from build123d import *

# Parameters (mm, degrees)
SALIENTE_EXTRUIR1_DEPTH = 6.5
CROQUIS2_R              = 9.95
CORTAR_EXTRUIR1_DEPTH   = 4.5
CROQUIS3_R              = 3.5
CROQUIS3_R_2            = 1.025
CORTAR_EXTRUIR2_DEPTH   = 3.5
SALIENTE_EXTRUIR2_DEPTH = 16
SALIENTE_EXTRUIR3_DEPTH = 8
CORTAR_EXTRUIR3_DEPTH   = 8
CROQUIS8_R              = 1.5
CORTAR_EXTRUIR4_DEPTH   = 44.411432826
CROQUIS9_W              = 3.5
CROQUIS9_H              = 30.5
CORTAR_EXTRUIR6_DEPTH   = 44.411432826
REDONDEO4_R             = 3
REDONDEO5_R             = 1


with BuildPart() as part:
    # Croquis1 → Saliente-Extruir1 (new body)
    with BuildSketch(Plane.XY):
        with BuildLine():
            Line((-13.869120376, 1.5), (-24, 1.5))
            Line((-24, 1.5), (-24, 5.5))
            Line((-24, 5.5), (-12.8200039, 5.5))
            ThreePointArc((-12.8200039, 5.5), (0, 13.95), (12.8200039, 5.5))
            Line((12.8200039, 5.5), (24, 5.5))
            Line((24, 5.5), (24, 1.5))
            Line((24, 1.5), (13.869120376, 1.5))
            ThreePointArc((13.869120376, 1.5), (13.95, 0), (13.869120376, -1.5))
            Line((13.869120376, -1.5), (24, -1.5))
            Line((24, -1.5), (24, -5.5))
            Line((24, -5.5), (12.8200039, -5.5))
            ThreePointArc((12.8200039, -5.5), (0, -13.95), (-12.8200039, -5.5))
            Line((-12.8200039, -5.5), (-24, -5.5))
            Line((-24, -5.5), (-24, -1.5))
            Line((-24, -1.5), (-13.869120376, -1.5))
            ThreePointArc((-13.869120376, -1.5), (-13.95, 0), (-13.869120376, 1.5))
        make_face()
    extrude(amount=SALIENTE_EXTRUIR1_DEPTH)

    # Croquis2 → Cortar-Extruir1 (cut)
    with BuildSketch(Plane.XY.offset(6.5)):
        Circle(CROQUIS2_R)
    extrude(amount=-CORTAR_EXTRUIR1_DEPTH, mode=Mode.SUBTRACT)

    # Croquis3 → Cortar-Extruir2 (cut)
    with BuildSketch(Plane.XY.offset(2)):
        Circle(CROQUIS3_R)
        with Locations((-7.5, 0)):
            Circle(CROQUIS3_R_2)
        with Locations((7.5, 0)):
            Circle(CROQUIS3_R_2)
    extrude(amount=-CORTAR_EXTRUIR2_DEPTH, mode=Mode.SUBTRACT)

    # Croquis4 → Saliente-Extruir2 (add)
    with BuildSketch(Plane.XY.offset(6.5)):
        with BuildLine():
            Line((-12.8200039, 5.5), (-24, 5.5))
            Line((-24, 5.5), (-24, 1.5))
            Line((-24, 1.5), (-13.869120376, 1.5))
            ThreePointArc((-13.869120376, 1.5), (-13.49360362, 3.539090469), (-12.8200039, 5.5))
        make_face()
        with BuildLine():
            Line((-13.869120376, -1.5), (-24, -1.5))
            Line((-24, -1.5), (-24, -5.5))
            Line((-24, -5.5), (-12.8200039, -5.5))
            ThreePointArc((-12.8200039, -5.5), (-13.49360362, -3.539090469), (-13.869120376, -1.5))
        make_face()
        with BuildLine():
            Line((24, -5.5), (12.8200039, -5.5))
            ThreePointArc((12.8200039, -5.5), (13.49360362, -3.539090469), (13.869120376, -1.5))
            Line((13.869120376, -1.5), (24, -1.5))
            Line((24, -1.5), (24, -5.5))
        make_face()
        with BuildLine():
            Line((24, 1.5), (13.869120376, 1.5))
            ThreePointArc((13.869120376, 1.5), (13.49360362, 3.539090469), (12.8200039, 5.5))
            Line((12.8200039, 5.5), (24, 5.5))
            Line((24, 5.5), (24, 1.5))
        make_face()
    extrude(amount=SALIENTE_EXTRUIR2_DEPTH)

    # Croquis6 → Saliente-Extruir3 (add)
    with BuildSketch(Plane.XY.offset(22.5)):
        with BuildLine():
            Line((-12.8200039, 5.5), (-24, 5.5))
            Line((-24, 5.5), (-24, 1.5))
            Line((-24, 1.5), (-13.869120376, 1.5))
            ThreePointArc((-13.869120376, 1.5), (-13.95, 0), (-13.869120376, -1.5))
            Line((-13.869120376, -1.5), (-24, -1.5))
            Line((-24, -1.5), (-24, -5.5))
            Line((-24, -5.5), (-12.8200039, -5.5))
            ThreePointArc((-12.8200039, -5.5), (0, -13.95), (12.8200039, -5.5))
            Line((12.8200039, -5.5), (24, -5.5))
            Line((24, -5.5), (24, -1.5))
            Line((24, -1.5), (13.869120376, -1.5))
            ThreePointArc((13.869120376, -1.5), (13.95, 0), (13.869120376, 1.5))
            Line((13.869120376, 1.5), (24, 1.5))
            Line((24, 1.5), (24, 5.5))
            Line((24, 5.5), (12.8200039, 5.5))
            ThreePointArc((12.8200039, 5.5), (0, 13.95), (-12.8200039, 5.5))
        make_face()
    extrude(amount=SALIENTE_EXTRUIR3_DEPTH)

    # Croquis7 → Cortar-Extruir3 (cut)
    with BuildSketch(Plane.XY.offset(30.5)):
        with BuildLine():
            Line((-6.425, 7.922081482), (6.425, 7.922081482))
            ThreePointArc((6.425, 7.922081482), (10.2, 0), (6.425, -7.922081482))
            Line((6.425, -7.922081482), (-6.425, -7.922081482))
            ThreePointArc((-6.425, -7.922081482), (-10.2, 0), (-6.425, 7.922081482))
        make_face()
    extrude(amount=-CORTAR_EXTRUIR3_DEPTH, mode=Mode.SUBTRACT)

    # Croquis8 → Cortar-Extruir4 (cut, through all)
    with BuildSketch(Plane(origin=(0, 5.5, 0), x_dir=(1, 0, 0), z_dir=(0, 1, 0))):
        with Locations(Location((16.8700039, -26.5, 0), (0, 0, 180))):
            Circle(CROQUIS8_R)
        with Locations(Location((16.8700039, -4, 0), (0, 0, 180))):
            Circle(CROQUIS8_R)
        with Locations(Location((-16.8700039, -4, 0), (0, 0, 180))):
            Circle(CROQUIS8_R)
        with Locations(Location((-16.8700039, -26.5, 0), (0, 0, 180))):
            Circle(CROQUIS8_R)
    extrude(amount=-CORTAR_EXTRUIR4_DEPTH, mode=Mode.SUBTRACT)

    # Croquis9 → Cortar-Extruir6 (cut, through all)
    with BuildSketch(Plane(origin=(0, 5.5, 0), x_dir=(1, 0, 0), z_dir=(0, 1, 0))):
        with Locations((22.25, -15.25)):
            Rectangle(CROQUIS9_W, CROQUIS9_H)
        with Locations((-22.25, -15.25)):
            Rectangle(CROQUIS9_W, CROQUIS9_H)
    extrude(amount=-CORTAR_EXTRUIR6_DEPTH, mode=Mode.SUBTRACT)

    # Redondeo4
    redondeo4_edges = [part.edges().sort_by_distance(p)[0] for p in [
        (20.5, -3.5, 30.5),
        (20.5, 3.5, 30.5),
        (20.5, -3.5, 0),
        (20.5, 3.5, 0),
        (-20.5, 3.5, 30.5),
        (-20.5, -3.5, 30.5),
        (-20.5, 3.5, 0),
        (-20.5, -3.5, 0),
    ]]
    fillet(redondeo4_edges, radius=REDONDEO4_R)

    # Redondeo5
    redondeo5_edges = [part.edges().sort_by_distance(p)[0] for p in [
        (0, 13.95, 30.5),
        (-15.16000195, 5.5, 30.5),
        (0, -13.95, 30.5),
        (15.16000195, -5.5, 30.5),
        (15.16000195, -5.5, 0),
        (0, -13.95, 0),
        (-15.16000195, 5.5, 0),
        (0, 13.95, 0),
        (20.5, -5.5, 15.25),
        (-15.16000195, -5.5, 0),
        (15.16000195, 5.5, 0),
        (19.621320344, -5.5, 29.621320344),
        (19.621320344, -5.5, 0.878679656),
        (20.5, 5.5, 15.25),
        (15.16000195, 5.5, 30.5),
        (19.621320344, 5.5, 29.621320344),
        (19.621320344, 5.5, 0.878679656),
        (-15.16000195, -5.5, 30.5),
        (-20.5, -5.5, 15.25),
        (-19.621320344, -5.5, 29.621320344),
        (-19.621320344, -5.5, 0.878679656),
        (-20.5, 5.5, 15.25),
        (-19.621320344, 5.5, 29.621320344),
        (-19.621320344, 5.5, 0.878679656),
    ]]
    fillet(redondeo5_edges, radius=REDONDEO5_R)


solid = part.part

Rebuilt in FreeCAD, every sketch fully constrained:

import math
import FreeCAD as App
import Part
import Sketcher
from FreeCAD import Vector
Q = App.Units.Quantity


def edges_at(feature, points):
    """Names of the edges that pass closest to the given points."""
    edges = feature.Shape.Edges
    near = lambda p: min(range(len(edges)), key=lambda i: edges[i].distToShape(Part.Vertex(*p))[0])
    return sorted({f"Edge{near(p) + 1}" for p in points})

doc = App.newDocument("Part")
body = doc.addObject("PartDesign::Body", "Body")

# Sketch on XY plane
sketch1 = body.newObject("Sketcher::SketchObject", "Sketch")
sketch1.AttachmentSupport = (doc.getObject("XY_Plane"), [""])
sketch1.MapMode = "FlatFace"
sketch1.addGeometry([
    Part.LineSegment(Vector(-24, 1.5, 0), Vector(-13.9, 1.5, 0)),  # 0
    Part.ArcOfCircle(Part.Circle(Vector(0, 0, 0), Vector(0, 0, 1), 14), math.radians(173.83), math.radians(186.17)),  # 1
    Part.LineSegment(Vector(-13.9, -1.5, 0), Vector(-24, -1.5, 0)),  # 2
    Part.LineSegment(Vector(-24, -1.5, 0), Vector(-24, -5.5, 0)),  # 3
    Part.LineSegment(Vector(-24, -5.5, 0), Vector(-12.8, -5.5, 0)),  # 4
    Part.ArcOfCircle(Part.Circle(Vector(0, 0, 0), Vector(0, 0, 1), 13.9), math.radians(-157), math.radians(-23)),  # 5
    Part.LineSegment(Vector(12.8, -5.5, 0), Vector(24, -5.5, 0)),  # 6
    Part.LineSegment(Vector(24, -5.5, 0), Vector(24, -1.5, 0)),  # 7
    Part.LineSegment(Vector(24, -1.5, 0), Vector(13.9, -1.5, 0)),  # 8
    Part.ArcOfCircle(Part.Circle(Vector(0, 0, 0), Vector(0, 0, 1), 14), math.radians(-6.17), math.radians(6.17)),  # 9
    Part.LineSegment(Vector(13.9, 1.5, 0), Vector(24, 1.5, 0)),  # 10
    Part.LineSegment(Vector(24, 1.5, 0), Vector(24, 5.5, 0)),  # 11
    Part.LineSegment(Vector(24, 5.5, 0), Vector(12.8, 5.5, 0)),  # 12
    Part.ArcOfCircle(Part.Circle(Vector(0, 0, 0), Vector(0, 0, 1), 13.9), math.radians(23), math.radians(157)),  # 13
    Part.LineSegment(Vector(-12.8, 5.5, 0), Vector(-24, 5.5, 0)),  # 14
    Part.LineSegment(Vector(-24, 5.5, 0), Vector(-24, 1.5, 0)),  # 15
], False)
sketch1.addConstraint([
    Sketcher.Constraint("Coincident", 0, 2, 1, 1),
    Sketcher.Constraint("Coincident", 1, 2, 2, 1),
    Sketcher.Constraint("Coincident", 2, 2, 3, 1),
    Sketcher.Constraint("Coincident", 3, 2, 4, 1),
    Sketcher.Constraint("Coincident", 4, 2, 5, 1),
    Sketcher.Constraint("Coincident", 5, 2, 6, 1),
    Sketcher.Constraint("Coincident", 6, 2, 7, 1),
    Sketcher.Constraint("Coincident", 7, 2, 8, 1),
    Sketcher.Constraint("Coincident", 8, 2, 9, 1),
    Sketcher.Constraint("Coincident", 9, 2, 10, 1),
    Sketcher.Constraint("Coincident", 10, 2, 11, 1),
    Sketcher.Constraint("Coincident", 11, 2, 12, 1),
    Sketcher.Constraint("Coincident", 12, 2, 13, 1),
    Sketcher.Constraint("Coincident", 13, 2, 14, 1),
    Sketcher.Constraint("Coincident", 14, 2, 15, 1),
    Sketcher.Constraint("Coincident", 15, 2, 0, 1),
    Sketcher.Constraint("Horizontal", 0),
    Sketcher.Constraint("Horizontal", 2),
    Sketcher.Constraint("Vertical", 3),
    Sketcher.Constraint("Horizontal", 4),
    Sketcher.Constraint("Horizontal", 6),
    Sketcher.Constraint("Vertical", 7),
    Sketcher.Constraint("Horizontal", 8),
    Sketcher.Constraint("Horizontal", 10),
    Sketcher.Constraint("Vertical", 11),
    Sketcher.Constraint("Horizontal", 12),
    Sketcher.Constraint("Horizontal", 14),
    Sketcher.Constraint("Vertical", 15),
    Sketcher.Constraint("Coincident", 1, 3, -1, 1),
    Sketcher.Constraint("Coincident", 5, 3, -1, 1),
    Sketcher.Constraint("Coincident", 9, 3, -1, 1),
    Sketcher.Constraint("Coincident", 13, 3, -1, 1),
    Sketcher.Constraint("Equal", 1, 5),
    Sketcher.Constraint("Equal", 5, 9),
    Sketcher.Constraint("Equal", 9, 13),
    Sketcher.Constraint("Symmetric", 2, 2, 10, 2, -1, 1),
    Sketcher.Constraint("Symmetric", 6, 2, 14, 2, -1, 1),
    Sketcher.Constraint("Symmetric", 3, 2, 6, 2, -2),
    Sketcher.Constraint("Horizontal", 2, 2, 7, 2),
    Sketcher.Constraint("Horizontal", 0, 2, 9, 2),
    Sketcher.Constraint("Horizontal", 12, 2, 13, 2),
    Sketcher.Constraint("DistanceY", 3, 2, 3, 1, Q("4 mm")),
    Sketcher.Constraint("Radius", 1, Q("13.95 mm")),
    Sketcher.Constraint("DistanceX", 2, 2, -1, 1, Q("24 mm")),
    Sketcher.Constraint("DistanceY", 1, 2, 0, 2, Q("3 mm")),
])
pad1 = body.newObject("PartDesign::Pad", "Pad")
pad1.Profile = sketch1
pad1.Length = 6.5

# Sketch on XY plane
sketch2 = body.newObject("Sketcher::SketchObject", "Sketch001")
sketch2.AttachmentSupport = (doc.getObject("XY_Plane"), [""])
sketch2.MapMode = "FlatFace"
sketch2.AttachmentOffset = App.Placement(Vector(0, 0, 6.5), App.Rotation())
sketch2.addGeometry(Part.Circle(Vector(0, 0, 0), Vector(0, 0, 1), 10), False)
sketch2.addConstraint([
    Sketcher.Constraint("Coincident", 0, 3, -1, 1),
    Sketcher.Constraint("Diameter", 0, Q("19.9 mm")),
])
pocket1 = body.newObject("PartDesign::Pocket", "Pocket")
pocket1.Profile = sketch2
pocket1.Length = 4.5

# Sketch on XY plane
sketch3 = body.newObject("Sketcher::SketchObject", "Sketch002")
sketch3.AttachmentSupport = (doc.getObject("XY_Plane"), [""])
sketch3.MapMode = "FlatFace"
sketch3.AttachmentOffset = App.Placement(Vector(0, 0, 2), App.Rotation())
sketch3.addGeometry([
    Part.Circle(Vector(0, 0, 0), Vector(0, 0, 1), 3.5),
    Part.Circle(Vector(-7.5, 0, 0), Vector(0, 0, 1), 1),
    Part.Circle(Vector(7.5, 0, 0), Vector(0, 0, 1), 1),
], False)
sketch3.addConstraint([
    Sketcher.Constraint("Coincident", 0, 3, -1, 1),
    Sketcher.Constraint("Equal", 1, 2),
    Sketcher.Constraint("Symmetric", 1, 3, 2, 3, -1, 1),
    Sketcher.Constraint("PointOnObject", 1, 3, -1),
    Sketcher.Constraint("Diameter", 0, Q("7 mm")),
    Sketcher.Constraint("Diameter", 1, Q("2.05 mm")),
    Sketcher.Constraint("DistanceX", 1, 3, 2, 3, Q("15 mm")),
])
pocket2 = body.newObject("PartDesign::Pocket", "Pocket001")
pocket2.Profile = sketch3
pocket2.Length = 3.5

# Sketch on XY plane
sketch4 = body.newObject("Sketcher::SketchObject", "Sketch003")
sketch4.AttachmentSupport = (doc.getObject("XY_Plane"), [""])
sketch4.MapMode = "FlatFace"
sketch4.AttachmentOffset = App.Placement(Vector(0, 0, 6.5), App.Rotation())
sketch4.addGeometry([
    Part.LineSegment(Vector(-12.8, 5.5, 0), Vector(-24, 5.5, 0)),  # 0
    Part.LineSegment(Vector(-24, 5.5, 0), Vector(-24, 1.5, 0)),  # 1
    Part.LineSegment(Vector(-24, 1.5, 0), Vector(-13.9, 1.5, 0)),  # 2
    Part.ArcOfCircle(Part.Circle(Vector(0, 0, 0), Vector(0, 0, 1), 13.9), math.radians(156.78), math.radians(173.83)),  # 3
    Part.LineSegment(Vector(-13.9, -1.5, 0), Vector(-24, -1.5, 0)),  # 4
    Part.LineSegment(Vector(-24, -1.5, 0), Vector(-24, -5.5, 0)),  # 5
    Part.LineSegment(Vector(-24, -5.5, 0), Vector(-12.8, -5.5, 0)),  # 6
    Part.ArcOfCircle(Part.Circle(Vector(0, 0, 0), Vector(0, 0, 1), 13.9), math.radians(-173.83), math.radians(-156.78)),  # 7
    Part.LineSegment(Vector(12.8, -5.5, 0), Vector(24, -5.5, 0)),  # 8
    Part.LineSegment(Vector(24, -5.5, 0), Vector(24, -1.5, 0)),  # 9
    Part.LineSegment(Vector(24, -1.5, 0), Vector(13.9, -1.5, 0)),  # 10
    Part.ArcOfCircle(Part.Circle(Vector(0, 0, 0), Vector(0, 0, 1), 13.9), math.radians(-23.22), math.radians(-6.17)),  # 11
    Part.LineSegment(Vector(13.9, 1.5, 0), Vector(24, 1.5, 0)),  # 12
    Part.LineSegment(Vector(24, 1.5, 0), Vector(24, 5.5, 0)),  # 13
    Part.LineSegment(Vector(24, 5.5, 0), Vector(12.8, 5.5, 0)),  # 14
    Part.ArcOfCircle(Part.Circle(Vector(0, 0, 0), Vector(0, 0, 1), 13.9), math.radians(6.17), math.radians(23.22)),  # 15
], False)
sketch4.addConstraint([
    Sketcher.Constraint("Coincident", 0, 2, 1, 1),
    Sketcher.Constraint("Coincident", 1, 2, 2, 1),
    Sketcher.Constraint("Coincident", 2, 2, 3, 2),
    Sketcher.Constraint("Coincident", 3, 1, 0, 1),
    Sketcher.Constraint("Coincident", 4, 2, 5, 1),
    Sketcher.Constraint("Coincident", 5, 2, 6, 1),
    Sketcher.Constraint("Coincident", 6, 2, 7, 2),
    Sketcher.Constraint("Coincident", 7, 1, 4, 1),
    Sketcher.Constraint("Coincident", 8, 2, 9, 1),
    Sketcher.Constraint("Coincident", 9, 2, 10, 1),
    Sketcher.Constraint("Coincident", 10, 2, 11, 2),
    Sketcher.Constraint("Coincident", 11, 1, 8, 1),
    Sketcher.Constraint("Coincident", 12, 2, 13, 1),
    Sketcher.Constraint("Coincident", 13, 2, 14, 1),
    Sketcher.Constraint("Coincident", 14, 2, 15, 2),
    Sketcher.Constraint("Coincident", 15, 1, 12, 1),
    Sketcher.Constraint("Horizontal", 0),
    Sketcher.Constraint("Vertical", 1),
    Sketcher.Constraint("Horizontal", 2),
    Sketcher.Constraint("Horizontal", 4),
    Sketcher.Constraint("Vertical", 5),
    Sketcher.Constraint("Horizontal", 6),
    Sketcher.Constraint("Horizontal", 8),
    Sketcher.Constraint("Vertical", 9),
    Sketcher.Constraint("Horizontal", 10),
    Sketcher.Constraint("Horizontal", 12),
    Sketcher.Constraint("Vertical", 13),
    Sketcher.Constraint("Horizontal", 14),
    Sketcher.Constraint("Coincident", 3, 3, -1, 1),
    Sketcher.Constraint("Coincident", 7, 3, -1, 1),
    Sketcher.Constraint("Coincident", 11, 3, -1, 1),
    Sketcher.Constraint("Coincident", 15, 3, -1, 1),
    Sketcher.Constraint("Equal", 3, 7),
    Sketcher.Constraint("Equal", 7, 11),
    Sketcher.Constraint("Equal", 11, 15),
    Sketcher.Constraint("Symmetric", 0, 2, 8, 2, -1, 1),
    Sketcher.Constraint("Symmetric", 4, 2, 12, 2, -1, 1),
    Sketcher.Constraint("Symmetric", 5, 2, 8, 2, -2),
    Sketcher.Constraint("Horizontal", 7, 1, 9, 2),
    Sketcher.Constraint("Horizontal", 2, 2, 12, 2),
    Sketcher.Constraint("Horizontal", 3, 1, 13, 2),
    Sketcher.Constraint("DistanceY", 1, 2, 1, 1, Q("4 mm")),
    Sketcher.Constraint("Radius", 3, Q("13.95 mm")),
    Sketcher.Constraint("DistanceX", 0, 2, -1, 1, Q("24 mm")),
    Sketcher.Constraint("DistanceY", 4, 2, 1, 2, Q("3 mm")),
])
pad2 = body.newObject("PartDesign::Pad", "Pad001")
pad2.Profile = sketch4
pad2.Length = 16

# Sketch on XY plane
sketch5 = body.newObject("Sketcher::SketchObject", "Sketch004")
sketch5.AttachmentSupport = (doc.getObject("XY_Plane"), [""])
sketch5.MapMode = "FlatFace"
sketch5.AttachmentOffset = App.Placement(Vector(0, 0, 22.5), App.Rotation())
sketch5.addGeometry([
    Part.LineSegment(Vector(-12.8, 5.5, 0), Vector(-24, 5.5, 0)),  # 0
    Part.LineSegment(Vector(-24, 5.5, 0), Vector(-24, 1.5, 0)),  # 1
    Part.LineSegment(Vector(-24, 1.5, 0), Vector(-13.9, 1.5, 0)),  # 2
    Part.ArcOfCircle(Part.Circle(Vector(0, 0, 0), Vector(0, 0, 1), 14), math.radians(173.83), math.radians(186.17)),  # 3
    Part.LineSegment(Vector(-13.9, -1.5, 0), Vector(-24, -1.5, 0)),  # 4
    Part.LineSegment(Vector(-24, -1.5, 0), Vector(-24, -5.5, 0)),  # 5
    Part.LineSegment(Vector(-24, -5.5, 0), Vector(-12.8, -5.5, 0)),  # 6
    Part.ArcOfCircle(Part.Circle(Vector(0, 0, 0), Vector(0, 0, 1), 13.9), math.radians(-157), math.radians(-23)),  # 7
    Part.LineSegment(Vector(12.8, -5.5, 0), Vector(24, -5.5, 0)),  # 8
    Part.LineSegment(Vector(24, -5.5, 0), Vector(24, -1.5, 0)),  # 9
    Part.LineSegment(Vector(24, -1.5, 0), Vector(13.9, -1.5, 0)),  # 10
    Part.ArcOfCircle(Part.Circle(Vector(0, 0, 0), Vector(0, 0, 1), 14), math.radians(-6.17), math.radians(6.17)),  # 11
    Part.LineSegment(Vector(13.9, 1.5, 0), Vector(24, 1.5, 0)),  # 12
    Part.LineSegment(Vector(24, 1.5, 0), Vector(24, 5.5, 0)),  # 13
    Part.LineSegment(Vector(24, 5.5, 0), Vector(12.8, 5.5, 0)),  # 14
    Part.ArcOfCircle(Part.Circle(Vector(0, 0, 0), Vector(0, 0, 1), 13.9), math.radians(23), math.radians(157)),  # 15
], False)
sketch5.addConstraint([
    Sketcher.Constraint("Coincident", 0, 2, 1, 1),
    Sketcher.Constraint("Coincident", 1, 2, 2, 1),
    Sketcher.Constraint("Coincident", 2, 2, 3, 1),
    Sketcher.Constraint("Coincident", 3, 2, 4, 1),
    Sketcher.Constraint("Coincident", 4, 2, 5, 1),
    Sketcher.Constraint("Coincident", 5, 2, 6, 1),
    Sketcher.Constraint("Coincident", 6, 2, 7, 1),
    Sketcher.Constraint("Coincident", 7, 2, 8, 1),
    Sketcher.Constraint("Coincident", 8, 2, 9, 1),
    Sketcher.Constraint("Coincident", 9, 2, 10, 1),
    Sketcher.Constraint("Coincident", 10, 2, 11, 1),
    Sketcher.Constraint("Coincident", 11, 2, 12, 1),
    Sketcher.Constraint("Coincident", 12, 2, 13, 1),
    Sketcher.Constraint("Coincident", 13, 2, 14, 1),
    Sketcher.Constraint("Coincident", 14, 2, 15, 1),
    Sketcher.Constraint("Coincident", 15, 2, 0, 1),
    Sketcher.Constraint("Horizontal", 0),
    Sketcher.Constraint("Vertical", 1),
    Sketcher.Constraint("Horizontal", 2),
    Sketcher.Constraint("Horizontal", 4),
    Sketcher.Constraint("Vertical", 5),
    Sketcher.Constraint("Horizontal", 6),
    Sketcher.Constraint("Horizontal", 8),
    Sketcher.Constraint("Vertical", 9),
    Sketcher.Constraint("Horizontal", 10),
    Sketcher.Constraint("Horizontal", 12),
    Sketcher.Constraint("Vertical", 13),
    Sketcher.Constraint("Horizontal", 14),
    Sketcher.Constraint("Coincident", 3, 3, -1, 1),
    Sketcher.Constraint("Coincident", 7, 3, -1, 1),
    Sketcher.Constraint("Coincident", 11, 3, -1, 1),
    Sketcher.Constraint("Coincident", 15, 3, -1, 1),
    Sketcher.Constraint("Equal", 3, 7),
    Sketcher.Constraint("Equal", 7, 11),
    Sketcher.Constraint("Equal", 11, 15),
    Sketcher.Constraint("Symmetric", 0, 2, 8, 2, -1, 1),
    Sketcher.Constraint("Symmetric", 4, 2, 12, 2, -1, 1),
    Sketcher.Constraint("Symmetric", 5, 2, 8, 2, -2),
    Sketcher.Constraint("Horizontal", 4, 2, 9, 2),
    Sketcher.Constraint("Horizontal", 2, 2, 11, 2),
    Sketcher.Constraint("Horizontal", 0, 2, 13, 2),
    Sketcher.Constraint("DistanceY", 1, 2, 1, 1, Q("4 mm")),
    Sketcher.Constraint("Radius", 3, Q("13.95 mm")),
    Sketcher.Constraint("DistanceX", 0, 2, -1, 1, Q("24 mm")),
    Sketcher.Constraint("DistanceY", 3, 2, 2, 2, Q("3 mm")),
])
pad3 = body.newObject("PartDesign::Pad", "Pad002")
pad3.Profile = sketch5
pad3.Length = 8

# Sketch on XY plane
sketch6 = body.newObject("Sketcher::SketchObject", "Sketch005")
sketch6.AttachmentSupport = (doc.getObject("XY_Plane"), [""])
sketch6.MapMode = "FlatFace"
sketch6.AttachmentOffset = App.Placement(Vector(0, 0, 30.5), App.Rotation())
sketch6.addGeometry([
    Part.LineSegment(Vector(6, 8, 0), Vector(-6, 8, 0)),
    Part.ArcOfCircle(Part.Circle(Vector(0, 0, 0), Vector(0, 0, 1), 10), math.radians(129), math.radians(231)),
    Part.LineSegment(Vector(-6, -8, 0), Vector(6, -8, 0)),
    Part.ArcOfCircle(Part.Circle(Vector(0, 0, 0), Vector(0, 0, 1), 10), math.radians(-51), math.radians(51)),
], False)
sketch6.addConstraint([
    Sketcher.Constraint("Coincident", 0, 2, 1, 1),
    Sketcher.Constraint("Coincident", 1, 2, 2, 1),
    Sketcher.Constraint("Coincident", 2, 2, 3, 1),
    Sketcher.Constraint("Coincident", 3, 2, 0, 1),
    Sketcher.Constraint("Horizontal", 0),
    Sketcher.Constraint("Horizontal", 2),
    Sketcher.Constraint("Coincident", 1, 3, -1, 1),
    Sketcher.Constraint("Coincident", 3, 3, -1, 1),
    Sketcher.Constraint("Equal", 1, 3),
    Sketcher.Constraint("Vertical", 0, 2, 1, 2),
    Sketcher.Constraint("Radius", 1, Q("10.2 mm")),
    Sketcher.Constraint("DistanceX", 0, 2, 0, 1, Q("12.85 mm")),
])
pocket3 = body.newObject("PartDesign::Pocket", "Pocket002")
pocket3.Profile = sketch6
pocket3.Length = 8

# Sketch on XZ plane
sketch7 = body.newObject("Sketcher::SketchObject", "Sketch006")
sketch7.AttachmentSupport = (doc.getObject("XZ_Plane"), [""])
sketch7.MapMode = "FlatFace"
sketch7.AttachmentOffset = App.Placement(Vector(0, 0, -5.5), App.Rotation())
sketch7.addGeometry([
    Part.Circle(Vector(16.9, 26.5, 0), Vector(0, 0, 1), 1.5),
    Part.Circle(Vector(16.9, 4, 0), Vector(0, 0, 1), 1.5),
    Part.Circle(Vector(-16.9, 4, 0), Vector(0, 0, 1), 1.5),
    Part.Circle(Vector(-16.9, 26.5, 0), Vector(0, 0, 1), 1.5),
], False)
sketch7.addConstraint([
    Sketcher.Constraint("Equal", 0, 1),
    Sketcher.Constraint("Equal", 1, 2),
    Sketcher.Constraint("Equal", 2, 3),
    Sketcher.Constraint("Symmetric", 1, 3, 2, 3, -2),
    Sketcher.Constraint("Symmetric", 0, 3, 3, 3, -2),
    Sketcher.Constraint("Vertical", 0, 3, 1, 3),
    Sketcher.Constraint("Diameter", 0, Q("3 mm")),
    Sketcher.Constraint("DistanceY", -1, 1, 1, 3, Q("4 mm")),
    Sketcher.Constraint("DistanceY", -1, 1, 0, 3, Q("26.5 mm")),
    Sketcher.Constraint("DistanceX", -1, 1, 0, 3, Q("16.870004 mm")),
])
pocket4 = body.newObject("PartDesign::Pocket", "Pocket003")
pocket4.Profile = sketch7
pocket4.Type = "ThroughAll"
pocket4.Reversed = True

# Sketch on XZ plane
sketch8 = body.newObject("Sketcher::SketchObject", "Sketch007")
sketch8.AttachmentSupport = (doc.getObject("XZ_Plane"), [""])
sketch8.MapMode = "FlatFace"
sketch8.AttachmentOffset = App.Placement(Vector(0, 0, -5.5), App.Rotation())
sketch8.addGeometry([
    Part.LineSegment(Vector(20.5, 0, 0), Vector(20.5, 30.5, 0)),  # 0
    Part.LineSegment(Vector(20.5, 30.5, 0), Vector(24, 30.5, 0)),  # 1
    Part.LineSegment(Vector(24, 30.5, 0), Vector(24, 0, 0)),  # 2
    Part.LineSegment(Vector(24, 0, 0), Vector(20.5, 0, 0)),  # 3
    Part.LineSegment(Vector(-24, 0, 0), Vector(-24, 30.5, 0)),  # 4
    Part.LineSegment(Vector(-24, 30.5, 0), Vector(-20.5, 30.5, 0)),  # 5
    Part.LineSegment(Vector(-20.5, 30.5, 0), Vector(-20.5, 0, 0)),  # 6
    Part.LineSegment(Vector(-20.5, 0, 0), Vector(-24, 0, 0)),  # 7
], False)
sketch8.addConstraint([
    Sketcher.Constraint("Coincident", 0, 2, 1, 1),
    Sketcher.Constraint("Coincident", 1, 2, 2, 1),
    Sketcher.Constraint("Coincident", 2, 2, 3, 1),
    Sketcher.Constraint("Coincident", 3, 2, 0, 1),
    Sketcher.Constraint("Coincident", 4, 2, 5, 1),
    Sketcher.Constraint("Coincident", 5, 2, 6, 1),
    Sketcher.Constraint("Coincident", 6, 2, 7, 1),
    Sketcher.Constraint("Coincident", 7, 2, 4, 1),
    Sketcher.Constraint("Vertical", 0),
    Sketcher.Constraint("Horizontal", 1),
    Sketcher.Constraint("Vertical", 2),
    Sketcher.Constraint("Horizontal", 3),
    Sketcher.Constraint("Vertical", 4),
    Sketcher.Constraint("Horizontal", 5),
    Sketcher.Constraint("Vertical", 6),
    Sketcher.Constraint("Horizontal", 7),
    Sketcher.Constraint("Symmetric", 3, 2, 6, 2, -1, 1),
    Sketcher.Constraint("Symmetric", 1, 2, 4, 2, -2),
    Sketcher.Constraint("PointOnObject", 2, 2, -1),
    Sketcher.Constraint("DistanceX", 1, 1, 1, 2, Q("3.5 mm")),
    Sketcher.Constraint("DistanceY", 0, 1, 0, 2, Q("30.5 mm")),
    Sketcher.Constraint("DistanceX", -1, 1, 1, 2, Q("24 mm")),
])
pocket5 = body.newObject("PartDesign::Pocket", "Pocket004")
pocket5.Profile = sketch8
pocket5.Type = "ThroughAll"
pocket5.Reversed = True
doc.recompute()

fillet = body.newObject("PartDesign::Fillet", "Fillet")
fillet.Base = (pocket5, edges_at(pocket5, [
    (20.5, -3.5, 30.5),
    (20.5, 3.5, 30.5),
    (20.5, -3.5, 0),
    (20.5, 3.5, 0),
    (-20.5, 3.5, 30.5),
    (-20.5, -3.5, 30.5),
    (-20.5, 3.5, 0),
    (-20.5, -3.5, 0),
]))
fillet.Radius = 3
doc.recompute()

fillet2 = body.newObject("PartDesign::Fillet", "Fillet001")
fillet2.Base = (fillet, edges_at(fillet, [
    (0, 13.95, 30.5),
    (-15.16, 5.5, 30.5),
    (0, -13.95, 30.5),
    (15.16, -5.5, 30.5),
    (15.16, -5.5, 0),
    (0, -13.95, 0),
    (-15.16, 5.5, 0),
    (0, 13.95, 0),
    (20.5, -5.5, 15.25),
    (-15.16, -5.5, 0),
    (15.16, 5.5, 0),
    (19.621, -5.5, 29.621),
    (19.621, -5.5, 0.879),
    (20.5, 5.5, 15.25),
    (15.16, 5.5, 30.5),
    (19.621, 5.5, 29.621),
    (19.621, 5.5, 0.879),
    (-15.16, -5.5, 30.5),
    (-20.5, -5.5, 15.25),
    (-19.621, -5.5, 29.621),
    (-19.621, -5.5, 0.879),
    (-20.5, 5.5, 15.25),
    (-19.621, 5.5, 29.621),
    (-19.621, 5.5, 0.879),
]))
fillet2.Radius = 1

doc.recompute()
